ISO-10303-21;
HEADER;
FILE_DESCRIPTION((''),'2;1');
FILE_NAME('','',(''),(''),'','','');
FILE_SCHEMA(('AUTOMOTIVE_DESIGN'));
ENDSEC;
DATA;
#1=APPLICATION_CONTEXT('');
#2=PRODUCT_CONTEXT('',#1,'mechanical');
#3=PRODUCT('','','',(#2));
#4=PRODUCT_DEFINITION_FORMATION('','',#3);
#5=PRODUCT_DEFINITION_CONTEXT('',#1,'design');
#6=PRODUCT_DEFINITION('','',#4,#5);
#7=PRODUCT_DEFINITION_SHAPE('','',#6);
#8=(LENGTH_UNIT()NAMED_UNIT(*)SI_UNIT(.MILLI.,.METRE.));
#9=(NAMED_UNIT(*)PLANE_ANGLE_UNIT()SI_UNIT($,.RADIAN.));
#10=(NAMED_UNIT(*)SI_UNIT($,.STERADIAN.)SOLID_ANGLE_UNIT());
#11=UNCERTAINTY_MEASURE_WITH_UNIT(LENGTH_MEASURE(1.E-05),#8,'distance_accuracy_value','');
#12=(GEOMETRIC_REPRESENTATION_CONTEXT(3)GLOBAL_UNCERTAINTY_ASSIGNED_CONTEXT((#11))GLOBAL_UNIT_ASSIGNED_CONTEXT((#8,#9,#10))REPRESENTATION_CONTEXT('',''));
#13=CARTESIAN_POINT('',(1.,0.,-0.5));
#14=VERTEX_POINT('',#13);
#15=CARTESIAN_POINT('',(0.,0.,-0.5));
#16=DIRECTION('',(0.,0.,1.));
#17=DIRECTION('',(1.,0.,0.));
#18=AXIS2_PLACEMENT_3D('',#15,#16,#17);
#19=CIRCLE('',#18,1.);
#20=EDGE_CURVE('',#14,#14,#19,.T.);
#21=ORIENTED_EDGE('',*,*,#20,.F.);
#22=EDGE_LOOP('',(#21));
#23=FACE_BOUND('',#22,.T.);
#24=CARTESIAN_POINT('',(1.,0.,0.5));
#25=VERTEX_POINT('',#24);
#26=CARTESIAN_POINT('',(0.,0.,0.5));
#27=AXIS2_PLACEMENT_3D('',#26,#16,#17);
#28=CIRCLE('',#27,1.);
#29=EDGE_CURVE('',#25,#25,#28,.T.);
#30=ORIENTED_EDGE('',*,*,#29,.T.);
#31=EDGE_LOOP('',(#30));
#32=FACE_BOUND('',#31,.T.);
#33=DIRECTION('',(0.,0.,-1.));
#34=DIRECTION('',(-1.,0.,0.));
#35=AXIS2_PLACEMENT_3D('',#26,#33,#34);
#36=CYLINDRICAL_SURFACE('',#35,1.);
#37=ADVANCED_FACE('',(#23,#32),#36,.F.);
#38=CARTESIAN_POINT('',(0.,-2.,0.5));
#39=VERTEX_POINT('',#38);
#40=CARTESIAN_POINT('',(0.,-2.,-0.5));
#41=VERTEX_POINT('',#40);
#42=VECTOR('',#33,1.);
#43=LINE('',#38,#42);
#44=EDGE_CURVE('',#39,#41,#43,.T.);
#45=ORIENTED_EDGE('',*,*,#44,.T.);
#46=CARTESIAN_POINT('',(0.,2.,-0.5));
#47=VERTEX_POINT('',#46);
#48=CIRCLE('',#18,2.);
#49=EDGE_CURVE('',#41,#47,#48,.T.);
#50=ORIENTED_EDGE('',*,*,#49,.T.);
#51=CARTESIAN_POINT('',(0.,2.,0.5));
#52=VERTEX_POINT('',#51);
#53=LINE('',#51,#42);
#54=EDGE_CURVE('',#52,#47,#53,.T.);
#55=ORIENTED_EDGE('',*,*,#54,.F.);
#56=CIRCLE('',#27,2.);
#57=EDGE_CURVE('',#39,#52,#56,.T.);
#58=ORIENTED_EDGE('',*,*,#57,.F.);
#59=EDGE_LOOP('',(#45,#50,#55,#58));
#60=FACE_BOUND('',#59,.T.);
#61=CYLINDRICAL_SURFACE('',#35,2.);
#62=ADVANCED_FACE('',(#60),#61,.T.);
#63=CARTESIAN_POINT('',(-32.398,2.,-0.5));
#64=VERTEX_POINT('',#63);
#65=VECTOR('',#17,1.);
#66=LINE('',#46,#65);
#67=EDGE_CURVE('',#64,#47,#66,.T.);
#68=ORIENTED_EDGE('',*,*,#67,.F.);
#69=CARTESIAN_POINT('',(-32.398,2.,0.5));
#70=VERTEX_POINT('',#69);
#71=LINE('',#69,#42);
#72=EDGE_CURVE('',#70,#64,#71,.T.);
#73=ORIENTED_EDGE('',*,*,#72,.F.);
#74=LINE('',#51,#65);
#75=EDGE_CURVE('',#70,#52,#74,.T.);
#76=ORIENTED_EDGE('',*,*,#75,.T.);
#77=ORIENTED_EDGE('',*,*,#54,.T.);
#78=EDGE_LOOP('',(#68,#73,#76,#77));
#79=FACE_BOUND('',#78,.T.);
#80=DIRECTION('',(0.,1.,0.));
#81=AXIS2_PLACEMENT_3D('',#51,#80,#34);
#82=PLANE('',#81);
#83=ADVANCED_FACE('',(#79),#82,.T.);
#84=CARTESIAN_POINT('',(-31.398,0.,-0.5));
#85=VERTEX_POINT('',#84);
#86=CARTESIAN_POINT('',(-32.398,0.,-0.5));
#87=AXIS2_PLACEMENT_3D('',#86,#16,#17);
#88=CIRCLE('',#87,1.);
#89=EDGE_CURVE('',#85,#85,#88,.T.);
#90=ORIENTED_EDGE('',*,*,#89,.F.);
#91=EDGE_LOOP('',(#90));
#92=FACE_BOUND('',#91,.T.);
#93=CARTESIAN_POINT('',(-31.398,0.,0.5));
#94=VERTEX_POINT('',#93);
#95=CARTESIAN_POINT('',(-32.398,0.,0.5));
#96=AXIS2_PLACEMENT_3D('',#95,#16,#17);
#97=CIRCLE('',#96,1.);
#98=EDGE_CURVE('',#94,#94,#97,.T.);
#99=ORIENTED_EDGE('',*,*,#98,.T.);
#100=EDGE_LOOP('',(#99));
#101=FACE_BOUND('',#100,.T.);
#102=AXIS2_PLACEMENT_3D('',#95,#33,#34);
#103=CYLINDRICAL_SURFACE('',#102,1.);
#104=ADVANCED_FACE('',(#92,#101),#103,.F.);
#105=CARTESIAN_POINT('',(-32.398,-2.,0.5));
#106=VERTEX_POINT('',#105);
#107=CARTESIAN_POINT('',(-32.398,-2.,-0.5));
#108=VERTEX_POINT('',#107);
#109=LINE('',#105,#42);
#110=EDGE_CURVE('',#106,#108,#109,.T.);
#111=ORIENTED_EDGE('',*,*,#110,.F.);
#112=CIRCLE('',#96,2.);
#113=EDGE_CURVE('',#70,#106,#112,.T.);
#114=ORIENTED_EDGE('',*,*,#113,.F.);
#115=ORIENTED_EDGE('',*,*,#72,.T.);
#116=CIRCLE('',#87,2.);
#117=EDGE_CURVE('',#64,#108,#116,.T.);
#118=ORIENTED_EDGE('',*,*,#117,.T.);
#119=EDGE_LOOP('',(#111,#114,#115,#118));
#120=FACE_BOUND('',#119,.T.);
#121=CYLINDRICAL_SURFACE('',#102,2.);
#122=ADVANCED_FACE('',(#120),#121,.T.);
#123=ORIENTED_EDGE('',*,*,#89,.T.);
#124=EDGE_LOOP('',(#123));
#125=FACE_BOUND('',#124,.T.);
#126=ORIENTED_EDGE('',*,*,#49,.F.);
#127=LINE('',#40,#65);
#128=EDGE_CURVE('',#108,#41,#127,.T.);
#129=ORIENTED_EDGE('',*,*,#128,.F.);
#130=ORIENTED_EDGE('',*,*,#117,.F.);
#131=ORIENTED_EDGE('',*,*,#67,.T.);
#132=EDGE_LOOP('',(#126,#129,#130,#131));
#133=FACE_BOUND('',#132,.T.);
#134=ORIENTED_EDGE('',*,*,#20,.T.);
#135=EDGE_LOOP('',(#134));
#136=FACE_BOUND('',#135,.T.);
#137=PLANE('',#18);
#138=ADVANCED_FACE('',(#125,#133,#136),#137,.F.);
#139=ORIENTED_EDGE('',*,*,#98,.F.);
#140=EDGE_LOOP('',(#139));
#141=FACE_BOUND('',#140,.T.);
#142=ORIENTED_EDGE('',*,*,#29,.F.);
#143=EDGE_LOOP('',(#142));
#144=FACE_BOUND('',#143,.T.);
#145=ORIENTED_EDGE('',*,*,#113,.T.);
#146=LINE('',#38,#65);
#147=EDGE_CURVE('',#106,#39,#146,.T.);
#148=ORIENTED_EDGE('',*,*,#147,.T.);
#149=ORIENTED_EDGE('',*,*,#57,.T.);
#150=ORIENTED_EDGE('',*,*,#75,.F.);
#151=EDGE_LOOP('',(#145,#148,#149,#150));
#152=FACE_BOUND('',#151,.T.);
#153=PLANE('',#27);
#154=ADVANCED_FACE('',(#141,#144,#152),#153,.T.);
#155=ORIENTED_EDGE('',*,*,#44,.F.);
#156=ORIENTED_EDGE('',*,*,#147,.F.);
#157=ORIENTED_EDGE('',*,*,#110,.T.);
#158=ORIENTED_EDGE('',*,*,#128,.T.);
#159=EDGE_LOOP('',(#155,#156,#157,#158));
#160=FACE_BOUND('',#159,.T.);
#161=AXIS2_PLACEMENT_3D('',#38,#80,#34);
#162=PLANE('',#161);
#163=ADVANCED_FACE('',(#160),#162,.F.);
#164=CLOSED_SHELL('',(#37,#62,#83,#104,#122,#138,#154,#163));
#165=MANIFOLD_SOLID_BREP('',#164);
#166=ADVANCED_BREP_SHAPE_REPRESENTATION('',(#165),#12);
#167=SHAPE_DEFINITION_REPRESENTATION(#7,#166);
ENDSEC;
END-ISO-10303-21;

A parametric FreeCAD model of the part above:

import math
import FreeCAD as App
import Part
import Sketcher

V = App.Vector
Q = App.Units.Quantity

doc = App.newDocument("Part")
body = doc.addObject("PartDesign::Body", "Body")

# Sketch on XY plane
sketch1 = body.newObject("Sketcher::SketchObject", "Sketch")
sketch1.AttachmentSupport = (doc.getObject("XY_Plane"), [""])
sketch1.MapMode = "FlatFace"
sketch1.addGeometry([
    Part.LineSegment(V(0, 2, 0), V(-32.4, 2, 0)),  # 0
    Part.ArcOfCircle(Part.Circle(V(-32.4, 0, 0), V(0, 0, 1), 2), math.radians(90), math.radians(270)),  # 1
    Part.LineSegment(V(-32.4, -2, 0), V(0, -2, 0)),  # 2
    Part.ArcOfCircle(Part.Circle(V(0, 0, 0), V(0, 0, 1), 2), math.radians(-90), math.radians(90)),  # 3
    Part.Circle(V(-32.4, 0, 0), V(0, 0, 1), 1),  # 4
    Part.Circle(V(0, 0, 0), V(0, 0, 1), 1),  # 5
], False)
sketch1.addConstraint([
    Sketcher.Constraint("Tangent", 0, 2, 1, 1),
    Sketcher.Constraint("Tangent", 1, 2, 2, 1),
    Sketcher.Constraint("Tangent", 2, 2, 3, 1),
    Sketcher.Constraint("Tangent", 3, 2, 0, 1),
    Sketcher.Constraint("Horizontal", 0),
    Sketcher.Constraint("Horizontal", 2),
    Sketcher.Constraint("Coincident", 3, 3, -1, 1),
    Sketcher.Constraint("Coincident", 5, 3, -1, 1),
    Sketcher.Constraint("Coincident", 4, 3, 1, 3),
    Sketcher.Constraint("Equal", 4, 5),
    Sketcher.Constraint("Diameter", 4, Q("2 mm")),
    Sketcher.Constraint("Radius", 1, Q("2 mm")),
    Sketcher.Constraint("DistanceX", 0, 2, 0, 1, Q("32.398 mm")),
])
pad1 = body.newObject("PartDesign::Pad", "Pad")
pad1.Profile = sketch1
pad1.Length = 1
pad1.Midplane = True

doc.recompute()
